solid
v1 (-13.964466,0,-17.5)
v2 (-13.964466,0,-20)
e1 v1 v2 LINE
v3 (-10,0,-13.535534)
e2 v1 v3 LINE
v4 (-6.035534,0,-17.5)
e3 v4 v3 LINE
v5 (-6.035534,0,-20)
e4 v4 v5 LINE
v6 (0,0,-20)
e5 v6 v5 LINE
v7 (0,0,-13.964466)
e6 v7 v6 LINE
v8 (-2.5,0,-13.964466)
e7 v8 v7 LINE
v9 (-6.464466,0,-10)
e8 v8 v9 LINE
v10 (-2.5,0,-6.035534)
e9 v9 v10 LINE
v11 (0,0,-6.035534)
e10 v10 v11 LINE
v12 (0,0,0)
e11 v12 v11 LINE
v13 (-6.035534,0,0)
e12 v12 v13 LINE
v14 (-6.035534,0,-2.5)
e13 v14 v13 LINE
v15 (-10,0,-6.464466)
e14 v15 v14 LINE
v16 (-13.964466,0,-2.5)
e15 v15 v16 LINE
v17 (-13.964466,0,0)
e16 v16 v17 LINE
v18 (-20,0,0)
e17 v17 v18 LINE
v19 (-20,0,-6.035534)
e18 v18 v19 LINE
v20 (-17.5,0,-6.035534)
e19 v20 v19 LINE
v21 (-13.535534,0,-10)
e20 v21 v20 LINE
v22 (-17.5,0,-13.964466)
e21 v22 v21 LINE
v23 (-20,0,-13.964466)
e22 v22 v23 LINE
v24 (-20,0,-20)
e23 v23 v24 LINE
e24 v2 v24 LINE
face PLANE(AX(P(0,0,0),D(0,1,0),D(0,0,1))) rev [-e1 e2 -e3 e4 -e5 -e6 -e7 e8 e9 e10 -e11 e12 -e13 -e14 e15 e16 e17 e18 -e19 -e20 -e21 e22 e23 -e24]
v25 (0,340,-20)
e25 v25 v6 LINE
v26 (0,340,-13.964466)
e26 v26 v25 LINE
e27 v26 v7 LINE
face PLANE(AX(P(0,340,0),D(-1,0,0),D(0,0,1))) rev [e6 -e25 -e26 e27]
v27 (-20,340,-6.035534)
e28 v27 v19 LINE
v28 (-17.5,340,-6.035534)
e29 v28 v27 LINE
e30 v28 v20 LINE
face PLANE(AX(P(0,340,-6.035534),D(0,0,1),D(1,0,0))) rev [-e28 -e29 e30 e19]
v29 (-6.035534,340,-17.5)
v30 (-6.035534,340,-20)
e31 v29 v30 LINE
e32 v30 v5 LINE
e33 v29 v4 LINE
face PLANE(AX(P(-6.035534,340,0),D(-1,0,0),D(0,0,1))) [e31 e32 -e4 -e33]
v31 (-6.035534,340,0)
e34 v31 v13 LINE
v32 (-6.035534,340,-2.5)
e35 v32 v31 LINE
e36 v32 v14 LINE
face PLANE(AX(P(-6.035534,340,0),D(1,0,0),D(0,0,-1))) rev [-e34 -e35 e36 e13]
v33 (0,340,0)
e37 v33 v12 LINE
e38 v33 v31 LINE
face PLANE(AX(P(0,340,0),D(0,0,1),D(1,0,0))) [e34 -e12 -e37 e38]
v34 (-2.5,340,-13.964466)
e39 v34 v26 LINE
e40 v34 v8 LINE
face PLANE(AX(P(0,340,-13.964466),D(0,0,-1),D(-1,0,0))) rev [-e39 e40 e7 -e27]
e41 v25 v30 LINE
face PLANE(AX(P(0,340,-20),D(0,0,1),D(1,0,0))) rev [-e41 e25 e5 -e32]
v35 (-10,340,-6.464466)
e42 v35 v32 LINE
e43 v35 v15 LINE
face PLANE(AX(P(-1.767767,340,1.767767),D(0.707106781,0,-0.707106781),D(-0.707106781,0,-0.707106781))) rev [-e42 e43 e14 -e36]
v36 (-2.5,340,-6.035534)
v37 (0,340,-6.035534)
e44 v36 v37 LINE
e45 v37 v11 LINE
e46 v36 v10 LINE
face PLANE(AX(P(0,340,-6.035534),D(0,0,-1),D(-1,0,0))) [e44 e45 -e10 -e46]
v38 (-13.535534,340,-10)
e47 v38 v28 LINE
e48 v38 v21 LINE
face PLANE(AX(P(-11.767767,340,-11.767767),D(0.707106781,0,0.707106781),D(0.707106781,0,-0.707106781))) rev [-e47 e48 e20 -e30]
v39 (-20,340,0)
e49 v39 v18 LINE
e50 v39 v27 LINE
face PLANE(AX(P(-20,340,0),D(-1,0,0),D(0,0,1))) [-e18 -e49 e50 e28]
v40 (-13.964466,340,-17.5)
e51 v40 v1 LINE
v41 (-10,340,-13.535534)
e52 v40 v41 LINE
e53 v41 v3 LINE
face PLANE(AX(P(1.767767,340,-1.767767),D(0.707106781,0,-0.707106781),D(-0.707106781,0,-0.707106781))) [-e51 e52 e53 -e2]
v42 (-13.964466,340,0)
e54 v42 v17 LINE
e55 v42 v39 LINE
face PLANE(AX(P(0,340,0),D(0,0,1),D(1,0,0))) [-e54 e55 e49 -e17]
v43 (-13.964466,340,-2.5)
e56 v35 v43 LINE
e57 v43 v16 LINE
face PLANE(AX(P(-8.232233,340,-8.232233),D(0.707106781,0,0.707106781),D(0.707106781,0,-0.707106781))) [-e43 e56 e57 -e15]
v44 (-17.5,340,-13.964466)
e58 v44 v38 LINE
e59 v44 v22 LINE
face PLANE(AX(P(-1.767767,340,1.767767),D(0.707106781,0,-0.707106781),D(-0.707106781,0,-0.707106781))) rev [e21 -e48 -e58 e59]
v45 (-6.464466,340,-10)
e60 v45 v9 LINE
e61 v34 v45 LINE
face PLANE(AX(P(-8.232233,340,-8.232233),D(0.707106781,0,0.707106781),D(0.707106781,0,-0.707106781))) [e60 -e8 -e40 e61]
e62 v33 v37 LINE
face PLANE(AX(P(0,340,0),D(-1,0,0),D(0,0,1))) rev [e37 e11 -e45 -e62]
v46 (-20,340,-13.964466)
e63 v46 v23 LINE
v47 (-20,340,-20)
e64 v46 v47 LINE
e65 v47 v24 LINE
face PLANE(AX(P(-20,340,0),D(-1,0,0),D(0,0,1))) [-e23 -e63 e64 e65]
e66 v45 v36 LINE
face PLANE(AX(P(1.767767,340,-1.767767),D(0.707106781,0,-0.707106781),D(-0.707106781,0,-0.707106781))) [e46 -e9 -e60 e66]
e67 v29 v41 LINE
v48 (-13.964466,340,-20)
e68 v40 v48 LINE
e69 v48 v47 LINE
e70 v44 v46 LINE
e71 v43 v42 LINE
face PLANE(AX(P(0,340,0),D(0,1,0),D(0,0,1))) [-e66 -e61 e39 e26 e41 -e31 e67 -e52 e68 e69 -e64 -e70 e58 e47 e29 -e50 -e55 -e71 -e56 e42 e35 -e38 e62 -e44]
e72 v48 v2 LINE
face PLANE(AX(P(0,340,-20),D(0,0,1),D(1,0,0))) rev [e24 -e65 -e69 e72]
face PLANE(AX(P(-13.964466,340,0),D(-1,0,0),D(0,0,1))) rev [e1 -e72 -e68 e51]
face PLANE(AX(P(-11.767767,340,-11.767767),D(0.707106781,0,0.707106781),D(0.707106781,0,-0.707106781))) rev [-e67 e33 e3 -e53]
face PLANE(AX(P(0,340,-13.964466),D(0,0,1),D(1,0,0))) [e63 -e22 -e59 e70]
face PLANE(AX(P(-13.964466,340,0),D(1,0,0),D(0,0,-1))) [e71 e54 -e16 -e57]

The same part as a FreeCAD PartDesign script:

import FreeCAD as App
import Part
import Sketcher

V = App.Vector
Q = App.Units.Quantity


def add_polygon(sketch, points):
    """Adds a closed chain of lines whose ends are joined by coincident constraints."""
    first, n = sketch.GeometryCount, len(points)
    for a, b in zip(points, points[1:] + points[:1]):
        sketch.addGeometry(Part.LineSegment(App.Vector(*a, 0), App.Vector(*b, 0)), False)
    for i in range(n):
        sketch.addConstraint(Sketcher.Constraint("Coincident", first + i, 2, first + (i + 1) % n, 1))

doc = App.newDocument("Part")
body = doc.addObject("PartDesign::Body", "Body")

# Sketch on XZ plane
sketch1 = body.newObject("Sketcher::SketchObject", "Sketch")
sketch1.AttachmentSupport = (doc.getObject("XZ_Plane"), [""])
sketch1.MapMode = "FlatFace"
add_polygon(sketch1, [(-6, -2.5), (-6, 0), (0, 0), (0, -6), (-2.5, -6), (-6.5, -10), (-2.5, -14), (0, -14), (0, -20), (-6, -20), (-6, -17.5), (-10, -13.5), (-14, -17.5), (-14, -20), (-20, -20), (-20, -14), (-17.5, -14), (-13.5, -10), (-17.5, -6), (-20, -6), (-20, 0), (-14, 0), (-14, -2.5), (-10, -6.5)])  # lines 0-23
sketch1.addConstraint(Sketcher.Constraint("Vertical", 0))
sketch1.addConstraint(Sketcher.Constraint("Horizontal", 1))
sketch1.addConstraint(Sketcher.Constraint("Vertical", 2))
sketch1.addConstraint(Sketcher.Constraint("Horizontal", 3))
sketch1.addConstraint(Sketcher.Constraint("Horizontal", 6))
sketch1.addConstraint(Sketcher.Constraint("Vertical", 7))
sketch1.addConstraint(Sketcher.Constraint("Horizontal", 8))
sketch1.addConstraint(Sketcher.Constraint("Vertical", 9))
sketch1.addConstraint(Sketcher.Constraint("Vertical", 12))
sketch1.addConstraint(Sketcher.Constraint("Horizontal", 13))
sketch1.addConstraint(Sketcher.Constraint("Vertical", 14))
sketch1.addConstraint(Sketcher.Constraint("Horizontal", 15))
sketch1.addConstraint(Sketcher.Constraint("Horizontal", 18))
sketch1.addConstraint(Sketcher.Constraint("Vertical", 19))
sketch1.addConstraint(Sketcher.Constraint("Horizontal", 20))
sketch1.addConstraint(Sketcher.Constraint("Vertical", 21))
sketch1.addConstraint(Sketcher.Constraint("Coincident", 1, 2, -1, 1))
sketch1.addConstraint(Sketcher.Constraint("PointOnObject", 6, 2, -2))
sketch1.addConstraint(Sketcher.Constraint("PointOnObject", 19, 2, -1))
sketch1.addConstraint(Sketcher.Constraint("Perpendicular", 4, 5))
sketch1.addConstraint(Sketcher.Constraint("Parallel", 5, 10))
sketch1.addConstraint(Sketcher.Constraint("Perpendicular", 10, 11))
sketch1.addConstraint(Sketcher.Constraint("Parallel", 11, 16))
sketch1.addConstraint(Sketcher.Constraint("Perpendicular", 16, 17))
sketch1.addConstraint(Sketcher.Constraint("Parallel", 17, 22))
sketch1.addConstraint(Sketcher.Constraint("Perpendicular", 22, 23))
sketch1.addConstraint(Sketcher.Constraint("Horizontal", 9, 2, 11, 2))
sketch1.addConstraint(Sketcher.Constraint("Horizontal", 8, 2, 12, 2))
sketch1.addConstraint(Sketcher.Constraint("Horizontal", 6, 2, 14, 2))
sketch1.addConstraint(Sketcher.Constraint("Horizontal", 4, 2, 16, 2))
sketch1.addConstraint(Sketcher.Constraint("Horizontal", 3, 2, 17, 2))
sketch1.addConstraint(Sketcher.Constraint("Horizontal", 21, 2, 23, 2))
sketch1.addConstraint(Sketcher.Constraint("Vertical", 3, 2, 5, 2))
sketch1.addConstraint(Sketcher.Constraint("Vertical", 0, 2, 8, 2))
sketch1.addConstraint(Sketcher.Constraint("Vertical", 15, 2, 17, 2))
sketch1.addConstraint(Sketcher.Constraint("Vertical", 14, 2, 18, 2))
sketch1.addConstraint(Sketcher.Constraint("Vertical", 12, 2, 20, 2))
sketch1.addConstraint(Sketcher.Constraint("Equal", 8, 13))
sketch1.addConstraint(Sketcher.Constraint("Equal", 6, 15))
sketch1.addConstraint(Sketcher.Constraint("Equal", 18, 0))
sketch1.addConstraint(Sketcher.Constraint("Equal", 20, 2))
sketch1.addConstraint(Sketcher.Constraint("Equal", 2, 7))
sketch1.addConstraint(Sketcher.Constraint("Equal", 0, 9))
sketch1.addConstraint(Sketcher.Constraint("Equal", 5, 10))
sketch1.addConstraint(Sketcher.Constraint("DistanceX", 3, 2, 3, 1, Q("2.5 mm")))
sketch1.addConstraint(Sketcher.Constraint("DistanceY", 4, 2, -1, 1, Q("10 mm")))
sketch1.addConstraint(Sketcher.Constraint("Distance", 4, Q("5.606602 mm")))
pad1 = body.newObject("PartDesign::Pad", "Pad")
pad1.Profile = sketch1
pad1.Length = 340
pad1.Reversed = True

doc.recompute()
